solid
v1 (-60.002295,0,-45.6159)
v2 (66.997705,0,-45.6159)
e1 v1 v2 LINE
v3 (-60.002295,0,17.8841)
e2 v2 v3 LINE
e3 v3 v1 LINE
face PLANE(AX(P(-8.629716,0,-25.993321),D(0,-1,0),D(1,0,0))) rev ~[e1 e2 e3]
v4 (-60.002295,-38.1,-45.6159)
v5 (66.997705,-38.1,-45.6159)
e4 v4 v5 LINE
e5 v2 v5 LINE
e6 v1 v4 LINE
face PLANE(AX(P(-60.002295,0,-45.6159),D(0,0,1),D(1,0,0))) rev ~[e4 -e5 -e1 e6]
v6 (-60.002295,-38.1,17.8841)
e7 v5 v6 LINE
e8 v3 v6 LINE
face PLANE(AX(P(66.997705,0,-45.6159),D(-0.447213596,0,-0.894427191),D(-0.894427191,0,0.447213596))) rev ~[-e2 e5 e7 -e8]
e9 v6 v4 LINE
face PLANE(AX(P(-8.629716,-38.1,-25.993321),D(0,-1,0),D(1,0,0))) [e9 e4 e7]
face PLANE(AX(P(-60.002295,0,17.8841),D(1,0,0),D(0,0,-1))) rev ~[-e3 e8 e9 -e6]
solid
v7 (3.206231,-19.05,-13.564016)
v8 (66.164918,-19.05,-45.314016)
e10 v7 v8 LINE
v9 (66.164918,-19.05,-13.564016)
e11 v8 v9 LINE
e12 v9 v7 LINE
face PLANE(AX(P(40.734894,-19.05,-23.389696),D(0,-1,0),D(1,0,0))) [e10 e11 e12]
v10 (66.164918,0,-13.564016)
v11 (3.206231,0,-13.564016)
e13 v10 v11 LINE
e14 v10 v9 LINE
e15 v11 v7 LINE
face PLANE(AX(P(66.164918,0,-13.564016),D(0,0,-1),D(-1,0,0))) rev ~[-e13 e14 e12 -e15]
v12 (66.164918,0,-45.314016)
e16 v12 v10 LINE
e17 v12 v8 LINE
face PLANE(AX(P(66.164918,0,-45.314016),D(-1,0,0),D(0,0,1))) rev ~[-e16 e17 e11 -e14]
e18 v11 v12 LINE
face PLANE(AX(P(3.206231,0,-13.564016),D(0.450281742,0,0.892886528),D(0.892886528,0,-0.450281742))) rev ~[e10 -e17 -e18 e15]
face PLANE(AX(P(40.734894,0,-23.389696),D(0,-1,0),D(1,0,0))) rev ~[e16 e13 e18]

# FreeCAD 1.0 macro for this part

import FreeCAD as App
import Part
import Sketcher
Q = App.Units.Quantity


def add_polygon(sketch, points):
    """Adds a closed chain of lines whose ends are joined by coincident constraints."""
    first, n = sketch.GeometryCount, len(points)
    for a, b in zip(points, points[1:] + points[:1]):
        sketch.addGeometry(Part.LineSegment(App.Vector(*a, 0), App.Vector(*b, 0)), False)
    for i in range(n):
        sketch.addConstraint(Sketcher.Constraint("Coincident", first + i, 2, first + (i + 1) % n, 1))

doc = App.newDocument("Part")
body = doc.addObject("PartDesign::Body", "Body")

# Sketch on XZ plane
sketch1 = body.newObject("Sketcher::SketchObject", "Sketch")
sketch1.AttachmentSupport = (doc.getObject("XZ_Plane"), [""])
sketch1.MapMode = "FlatFace"
add_polygon(sketch1, [(-60, 18), (-60, -46), (67, -46)])  # lines 0-2
sketch1.addConstraint([
    Sketcher.Constraint("Vertical", 0),
    Sketcher.Constraint("Horizontal", 1),
    Sketcher.Constraint("DistanceX", 1, 1, 1, 2, Q("5 in")),
    Sketcher.Constraint("DistanceY", 0, 2, 0, 1, Q("2.5 in")),
    Sketcher.Constraint("DistanceY", 0, 2, -1, 1, Q("45.6159 mm")),
    Sketcher.Constraint("DistanceX", 0, 2, -1, 1, Q("60.002295 mm")),
])
pad1 = body.newObject("PartDesign::Pad", "Pad")
pad1.Profile = sketch1
pad1.Length = Q("1.5 in")
body2 = doc.addObject("PartDesign::Body", "Body001")

# Sketch on XZ plane
sketch2 = body2.newObject("Sketcher::SketchObject", "Sketch001")
sketch2.AttachmentSupport = (doc.getObject("XZ_Plane001"), [""])
sketch2.MapMode = "FlatFace"
add_polygon(sketch2, [(3, -14), (66, -45), (66, -14)])  # lines 0-2
sketch2.addConstraint([
    Sketcher.Constraint("Vertical", 1),
    Sketcher.Constraint("Horizontal", 2),
    Sketcher.Constraint("DistanceY", 1, 1, 1, 2, Q("1.25 in")),
    Sketcher.Constraint("Distance", 0, Q("70.511409 mm")),
    Sketcher.Constraint("DistanceX", -1, 1, 0, 2, Q("66.164918 mm")),
    Sketcher.Constraint("DistanceY", 0, 2, -1, 1, Q("45.314016 mm")),
])
pad2 = body2.newObject("PartDesign::Pad", "Pad001")
pad2.Profile = sketch2
pad2.Length = Q("0.75 in")

doc.recompute()
